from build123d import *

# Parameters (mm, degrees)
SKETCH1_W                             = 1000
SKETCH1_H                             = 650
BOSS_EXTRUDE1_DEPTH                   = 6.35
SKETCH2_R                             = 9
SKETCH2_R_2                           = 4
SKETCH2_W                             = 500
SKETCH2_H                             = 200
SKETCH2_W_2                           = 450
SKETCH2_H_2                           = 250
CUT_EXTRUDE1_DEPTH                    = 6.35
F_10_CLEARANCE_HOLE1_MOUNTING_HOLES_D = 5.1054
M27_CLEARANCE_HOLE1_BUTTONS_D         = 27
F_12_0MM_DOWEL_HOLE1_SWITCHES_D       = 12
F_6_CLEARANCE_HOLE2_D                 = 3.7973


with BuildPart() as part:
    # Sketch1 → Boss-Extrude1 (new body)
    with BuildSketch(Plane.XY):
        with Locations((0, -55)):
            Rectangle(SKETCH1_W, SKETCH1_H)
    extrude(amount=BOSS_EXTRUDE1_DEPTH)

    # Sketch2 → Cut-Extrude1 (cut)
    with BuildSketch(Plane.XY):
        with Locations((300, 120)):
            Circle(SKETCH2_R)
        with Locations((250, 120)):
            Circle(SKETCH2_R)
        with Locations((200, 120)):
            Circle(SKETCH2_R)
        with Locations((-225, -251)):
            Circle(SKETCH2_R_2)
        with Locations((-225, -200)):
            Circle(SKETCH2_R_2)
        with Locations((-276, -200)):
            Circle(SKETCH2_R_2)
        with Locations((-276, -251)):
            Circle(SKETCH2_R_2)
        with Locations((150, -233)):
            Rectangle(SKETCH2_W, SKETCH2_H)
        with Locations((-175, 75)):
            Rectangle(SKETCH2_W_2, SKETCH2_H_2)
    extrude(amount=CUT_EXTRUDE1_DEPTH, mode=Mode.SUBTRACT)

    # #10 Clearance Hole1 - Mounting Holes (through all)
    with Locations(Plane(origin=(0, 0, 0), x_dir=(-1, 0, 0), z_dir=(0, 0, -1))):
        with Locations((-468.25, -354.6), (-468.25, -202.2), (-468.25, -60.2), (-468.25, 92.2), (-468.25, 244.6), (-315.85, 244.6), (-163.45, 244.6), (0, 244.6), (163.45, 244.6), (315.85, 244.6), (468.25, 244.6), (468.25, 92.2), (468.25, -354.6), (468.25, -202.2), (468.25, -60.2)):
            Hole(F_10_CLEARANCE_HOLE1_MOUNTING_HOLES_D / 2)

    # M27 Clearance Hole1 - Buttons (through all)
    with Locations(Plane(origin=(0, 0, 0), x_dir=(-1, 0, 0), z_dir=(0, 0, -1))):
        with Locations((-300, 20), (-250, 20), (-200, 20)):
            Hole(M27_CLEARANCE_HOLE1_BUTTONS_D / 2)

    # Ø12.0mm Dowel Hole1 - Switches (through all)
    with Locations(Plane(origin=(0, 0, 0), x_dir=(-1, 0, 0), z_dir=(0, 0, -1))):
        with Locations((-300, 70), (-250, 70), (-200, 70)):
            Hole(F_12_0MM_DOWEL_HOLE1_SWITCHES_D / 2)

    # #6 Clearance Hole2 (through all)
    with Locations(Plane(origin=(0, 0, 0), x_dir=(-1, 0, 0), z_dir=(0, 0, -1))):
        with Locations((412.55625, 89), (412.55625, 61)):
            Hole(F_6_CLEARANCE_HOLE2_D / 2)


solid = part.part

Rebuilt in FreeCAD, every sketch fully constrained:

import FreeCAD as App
import Part
import Sketcher
Q = App.Units.Quantity


def add_polygon(sketch, points):
    """Adds a closed chain of lines whose ends are joined by coincident constraints."""
    first, n = sketch.GeometryCount, len(points)
    for a, b in zip(points, points[1:] + points[:1]):
        sketch.addGeometry(Part.LineSegment(App.Vector(*a, 0), App.Vector(*b, 0)), False)
    for i in range(n):
        sketch.addConstraint(Sketcher.Constraint("Coincident", first + i, 2, first + (i + 1) % n, 1))

doc = App.newDocument("Part")
body = doc.addObject("PartDesign::Body", "Body")

sketch1 = doc.addObject("Sketcher::SketchObject", "Sketch")
body.addObject(sketch1)
sketch1.AttachmentSupport = (doc.XY_Plane, [""])
sketch1.MapMode = "FlatFace"
add_polygon(sketch1, [(-500, 270), (-500, -380), (500, -380), (500, 270)])
sketch1.addConstraint([
    Sketcher.Constraint("Vertical", 0),
    Sketcher.Constraint("Horizontal", 1),
    Sketcher.Constraint("Vertical", 2),
    Sketcher.Constraint("Horizontal", 3),
    Sketcher.Constraint("DistanceX", 1, 1, 1, 2, Q("1000 mm")),
    Sketcher.Constraint("DistanceY", 0, 2, 0, 1, Q("650 mm")),
    Sketcher.Constraint("DistanceX", 0, 2, -1, 1, Q("500 mm")),
    Sketcher.Constraint("DistanceY", 0, 2, -1, 1, Q("380 mm")),
])
pad1 = doc.addObject("PartDesign::Pad", "Pad")
body.addObject(pad1)
pad1.Profile = sketch1
pad1.Length = 6.35

sketch2 = doc.addObject("Sketcher::SketchObject", "Sketch001")
body.addObject(sketch2)
sketch2.AttachmentSupport = (doc.XY_Plane, [""])
sketch2.MapMode = "FlatFace"
sketch2.addGeometry(Part.Circle(App.Vector(300, 120, 0), App.Vector(0, 0, 1), 9), False)
sketch2.addGeometry(Part.Circle(App.Vector(250, 120, 0), App.Vector(0, 0, 1), 9), False)
sketch2.addGeometry(Part.Circle(App.Vector(200, 120, 0), App.Vector(0, 0, 1), 9), False)
sketch2.addGeometry(Part.Circle(App.Vector(-225, -251, 0), App.Vector(0, 0, 1), 4), False)
sketch2.addGeometry(Part.Circle(App.Vector(-225, -200, 0), App.Vector(0, 0, 1), 4), False)
sketch2.addGeometry(Part.Circle(App.Vector(-276, -200, 0), App.Vector(0, 0, 1), 4), False)
sketch2.addGeometry(Part.Circle(App.Vector(-276, -251, 0), App.Vector(0, 0, 1), 4), False)
add_polygon(sketch2, [(-100, -133), (-100, -333), (400, -333), (400, -133)])
add_polygon(sketch2, [(-400, 200), (-400, -50), (50, -50), (50, 200)])
sketch2.addConstraint([
    Sketcher.Constraint("Vertical", 7),
    Sketcher.Constraint("Horizontal", 8),
    Sketcher.Constraint("Vertical", 9),
    Sketcher.Constraint("Horizontal", 10),
    Sketcher.Constraint("Vertical", 11),
    Sketcher.Constraint("Horizontal", 12),
    Sketcher.Constraint("Vertical", 13),
    Sketcher.Constraint("Horizontal", 14),
    Sketcher.Constraint("Equal", 0, 1),
    Sketcher.Constraint("Equal", 1, 2),
    Sketcher.Constraint("Equal", 3, 4),
    Sketcher.Constraint("Equal", 4, 5),
    Sketcher.Constraint("Equal", 5, 6),
    Sketcher.Constraint("Horizontal", 0, 3, 1, 3),
    Sketcher.Constraint("Horizontal", 1, 3, 2, 3),
    Sketcher.Constraint("Horizontal", 4, 3, 5, 3),
    Sketcher.Constraint("Horizontal", 3, 3, 6, 3),
    Sketcher.Constraint("Vertical", 3, 3, 4, 3),
    Sketcher.Constraint("Vertical", 5, 3, 6, 3),
    Sketcher.Constraint("Diameter", 0, Q("18 mm")),
    Sketcher.Constraint("Diameter", 3, Q("8 mm")),
    Sketcher.Constraint("DistanceX", 8, 1, 8, 2, Q("500 mm")),
    Sketcher.Constraint("DistanceX", 12, 1, 12, 2, Q("450 mm")),
    Sketcher.Constraint("DistanceY", 7, 2, 7, 1, Q("200 mm")),
    Sketcher.Constraint("DistanceY", 11, 2, 11, 1, Q("250 mm")),
    Sketcher.Constraint("DistanceX", -1, 1, 0, 3, Q("300 mm")),
    Sketcher.Constraint("DistanceY", -1, 1, 0, 3, Q("120 mm")),
    Sketcher.Constraint("DistanceX", -1, 1, 1, 3, Q("250 mm")),
    Sketcher.Constraint("DistanceX", -1, 1, 2, 3, Q("200 mm")),
    Sketcher.Constraint("DistanceX", 3, 3, -1, 1, Q("225 mm")),
    Sketcher.Constraint("DistanceY", 3, 3, -1, 1, Q("251 mm")),
    Sketcher.Constraint("DistanceY", 4, 3, -1, 1, Q("200 mm")),
    Sketcher.Constraint("DistanceX", 5, 3, -1, 1, Q("276 mm")),
    Sketcher.Constraint("DistanceX", 7, 2, -1, 1, Q("100 mm")),
    Sketcher.Constraint("DistanceY", 7, 2, -1, 1, Q("333 mm")),
    Sketcher.Constraint("DistanceX", 11, 2, -1, 1, Q("400 mm")),
    Sketcher.Constraint("DistanceY", 11, 2, -1, 1, Q("50 mm")),
])
pocket1 = doc.addObject("PartDesign::Pocket", "Pocket")
body.addObject(pocket1)
pocket1.Profile = sketch2
pocket1.Length = 6.35
pocket1.Reversed = True

sketch3 = doc.addObject("Sketcher::SketchObject", "Sketch002")
body.addObject(sketch3)
sketch3.AttachmentSupport = (doc.XY_Plane, [""])
sketch3.MapMode = "FlatFace"
sketch3.addGeometry([
    Part.Circle(App.Vector(468.2, -354.6, 0), App.Vector(0, 0, 1), 2.6),
    Part.Circle(App.Vector(468.2, -202.2, 0), App.Vector(0, 0, 1), 2.6),
    Part.Circle(App.Vector(468.2, -60.2, 0), App.Vector(0, 0, 1), 2.6),
    Part.Circle(App.Vector(468.2, 92.2, 0), App.Vector(0, 0, 1), 2.6),
    Part.Circle(App.Vector(468.2, 244.6, 0), App.Vector(0, 0, 1), 2.6),
    Part.Circle(App.Vector(315.9, 244.6, 0), App.Vector(0, 0, 1), 2.6),
    Part.Circle(App.Vector(163.4, 244.6, 0), App.Vector(0, 0, 1), 2.6),
    Part.Circle(App.Vector(0, 244.6, 0), App.Vector(0, 0, 1), 2.6),
    Part.Circle(App.Vector(-163.4, 244.6, 0), App.Vector(0, 0, 1), 2.6),
    Part.Circle(App.Vector(-315.9, 244.6, 0), App.Vector(0, 0, 1), 2.6),
    Part.Circle(App.Vector(-468.2, 244.6, 0), App.Vector(0, 0, 1), 2.6),
    Part.Circle(App.Vector(-468.2, 92.2, 0), App.Vector(0, 0, 1), 2.6),
    Part.Circle(App.Vector(-468.2, -354.6, 0), App.Vector(0, 0, 1), 2.6),
    Part.Circle(App.Vector(-468.2, -202.2, 0), App.Vector(0, 0, 1), 2.6),
    Part.Circle(App.Vector(-468.2, -60.2, 0), App.Vector(0, 0, 1), 2.6),
], False)
sketch3.addConstraint([
    Sketcher.Constraint("Equal", 0, 1),
    Sketcher.Constraint("Equal", 1, 2),
    Sketcher.Constraint("Equal", 2, 3),
    Sketcher.Constraint("Equal", 3, 4),
    Sketcher.Constraint("Equal", 4, 5),
    Sketcher.Constraint("Equal", 5, 6),
    Sketcher.Constraint("Equal", 6, 7),
    Sketcher.Constraint("Equal", 7, 8),
    Sketcher.Constraint("Equal", 8, 9),
    Sketcher.Constraint("Equal", 9, 10),
    Sketcher.Constraint("Equal", 10, 11),
    Sketcher.Constraint("Equal", 11, 12),
    Sketcher.Constraint("Equal", 12, 13),
    Sketcher.Constraint("Equal", 13, 14),
    Sketcher.Constraint("Symmetric", 6, 3, 8, 3, -2),
    Sketcher.Constraint("Symmetric", 5, 3, 9, 3, -2),
    Sketcher.Constraint("Symmetric", 4, 3, 10, 3, -2),
    Sketcher.Constraint("Symmetric", 3, 3, 11, 3, -2),
    Sketcher.Constraint("Symmetric", 0, 3, 12, 3, -2),
    Sketcher.Constraint("Symmetric", 1, 3, 13, 3, -2),
    Sketcher.Constraint("Symmetric", 2, 3, 14, 3, -2),
    Sketcher.Constraint("PointOnObject", 7, 3, -2),
    Sketcher.Constraint("Horizontal", 4, 3, 5, 3),
    Sketcher.Constraint("Horizontal", 5, 3, 6, 3),
    Sketcher.Constraint("Horizontal", 6, 3, 7, 3),
    Sketcher.Constraint("Vertical", 0, 3, 1, 3),
    Sketcher.Constraint("Vertical", 1, 3, 2, 3),
    Sketcher.Constraint("Vertical", 2, 3, 3, 3),
    Sketcher.Constraint("Vertical", 3, 3, 4, 3),
    Sketcher.Constraint("DistanceY", 1, 3, 2, 3, Q("142 mm")),
    Sketcher.Constraint("Diameter", 0, Q("5.1054 mm")),
    Sketcher.Constraint("DistanceY", 0, 3, -1, 1, Q("354.6 mm")),
    Sketcher.Constraint("DistanceY", 1, 3, -1, 1, Q("202.2 mm")),
    Sketcher.Constraint("DistanceY", -1, 1, 3, 3, Q("92.2 mm")),
    Sketcher.Constraint("DistanceY", -1, 1, 4, 3, Q("244.6 mm")),
    Sketcher.Constraint("DistanceX", 5, 3, 4, 3, Q("152.4 mm")),
    Sketcher.Constraint("DistanceX", 6, 3, 5, 3, Q("152.4 mm")),
    Sketcher.Constraint("DistanceX", 8, 3, 6, 3, Q("326.9 mm")),
])
doc.recompute()
hole = doc.addObject("PartDesign::Hole", "Hole")
body.addObject(hole)
hole.Profile = sketch3
hole.ThreadType = "None"
hole.Diameter = 5.1054
hole.DepthType = "ThroughAll"
hole.Reversed = True

sketch4 = doc.addObject("Sketcher::SketchObject", "Sketch003")
body.addObject(sketch4)
sketch4.AttachmentSupport = (doc.XY_Plane, [""])
sketch4.MapMode = "FlatFace"
sketch4.addGeometry([
    Part.Circle(App.Vector(300, 20, 0), App.Vector(0, 0, 1), 14),
    Part.Circle(App.Vector(250, 20, 0), App.Vector(0, 0, 1), 14),
    Part.Circle(App.Vector(200, 20, 0), App.Vector(0, 0, 1), 14),
], False)
sketch4.addConstraint([
    Sketcher.Constraint("Equal", 0, 1),
    Sketcher.Constraint("Equal", 1, 2),
    Sketcher.Constraint("Horizontal", 0, 3, 1, 3),
    Sketcher.Constraint("Horizontal", 1, 3, 2, 3),
    Sketcher.Constraint("Diameter", 0, Q("27 mm")),
    Sketcher.Constraint("DistanceX", -1, 1, 0, 3, Q("300 mm")),
    Sketcher.Constraint("DistanceY", -1, 1, 0, 3, Q("20 mm")),
    Sketcher.Constraint("DistanceX", -1, 1, 1, 3, Q("250 mm")),
    Sketcher.Constraint("DistanceX", -1, 1, 2, 3, Q("200 mm")),
])
doc.recompute()
hole2 = doc.addObject("PartDesign::Hole", "Hole001")
body.addObject(hole2)
hole2.Profile = sketch4
hole2.ThreadType = "None"
hole2.Diameter = 27
hole2.DepthType = "ThroughAll"
hole2.Reversed = True

sketch5 = doc.addObject("Sketcher::SketchObject", "Sketch004")
body.addObject(sketch5)
sketch5.AttachmentSupport = (doc.XY_Plane, [""])
sketch5.MapMode = "FlatFace"
sketch5.addGeometry([
    Part.Circle(App.Vector(300, 70, 0), App.Vector(0, 0, 1), 6),
    Part.Circle(App.Vector(250, 70, 0), App.Vector(0, 0, 1), 6),
    Part.Circle(App.Vector(200, 70, 0), App.Vector(0, 0, 1), 6),
], False)
sketch5.addConstraint([
    Sketcher.Constraint("Equal", 0, 1),
    Sketcher.Constraint("Equal", 1, 2),
    Sketcher.Constraint("Horizontal", 0, 3, 1, 3),
    Sketcher.Constraint("Horizontal", 1, 3, 2, 3),
    Sketcher.Constraint("Diameter", 0, Q("12 mm")),
    Sketcher.Constraint("DistanceX", -1, 1, 0, 3, Q("300 mm")),
    Sketcher.Constraint("DistanceY", -1, 1, 0, 3, Q("70 mm")),
    Sketcher.Constraint("DistanceX", -1, 1, 1, 3, Q("250 mm")),
    Sketcher.Constraint("DistanceX", -1, 1, 2, 3, Q("200 mm")),
])
doc.recompute()
hole3 = doc.addObject("PartDesign::Hole", "Hole002")
body.addObject(hole3)
hole3.Profile = sketch5
hole3.ThreadType = "None"
hole3.Diameter = 12
hole3.DepthType = "ThroughAll"
hole3.Reversed = True

sketch6 = doc.addObject("Sketcher::SketchObject", "Sketch005")
body.addObject(sketch6)
sketch6.AttachmentSupport = (doc.XY_Plane, [""])
sketch6.MapMode = "FlatFace"
sketch6.addGeometry([
    Part.Circle(App.Vector(-412.6, 89, 0), App.Vector(0, 0, 1), 1.9),
    Part.Circle(App.Vector(-412.6, 61, 0), App.Vector(0, 0, 1), 1.9),
], False)
sketch6.addConstraint([
    Sketcher.Constraint("Equal", 0, 1),
    Sketcher.Constraint("Vertical", 0, 3, 1, 3),
    Sketcher.Constraint("DistanceY", -1, 1, 0, 3, Q("89 mm")),
    Sketcher.Constraint("DistanceY", -1, 1, 1, 3, Q("61 mm")),
    Sketcher.Constraint("Diameter", 0, Q("3.7973 mm")),
    Sketcher.Constraint("DistanceX", 0, 3, -1, 1, Q("412.55625 mm")),
])
doc.recompute()
hole4 = doc.addObject("PartDesign::Hole", "Hole003")
body.addObject(hole4)
hole4.Profile = sketch6
hole4.ThreadType = "None"
hole4.Diameter = 3.7973
hole4.DepthType = "ThroughAll"
hole4.Reversed = True

doc.recompute()
